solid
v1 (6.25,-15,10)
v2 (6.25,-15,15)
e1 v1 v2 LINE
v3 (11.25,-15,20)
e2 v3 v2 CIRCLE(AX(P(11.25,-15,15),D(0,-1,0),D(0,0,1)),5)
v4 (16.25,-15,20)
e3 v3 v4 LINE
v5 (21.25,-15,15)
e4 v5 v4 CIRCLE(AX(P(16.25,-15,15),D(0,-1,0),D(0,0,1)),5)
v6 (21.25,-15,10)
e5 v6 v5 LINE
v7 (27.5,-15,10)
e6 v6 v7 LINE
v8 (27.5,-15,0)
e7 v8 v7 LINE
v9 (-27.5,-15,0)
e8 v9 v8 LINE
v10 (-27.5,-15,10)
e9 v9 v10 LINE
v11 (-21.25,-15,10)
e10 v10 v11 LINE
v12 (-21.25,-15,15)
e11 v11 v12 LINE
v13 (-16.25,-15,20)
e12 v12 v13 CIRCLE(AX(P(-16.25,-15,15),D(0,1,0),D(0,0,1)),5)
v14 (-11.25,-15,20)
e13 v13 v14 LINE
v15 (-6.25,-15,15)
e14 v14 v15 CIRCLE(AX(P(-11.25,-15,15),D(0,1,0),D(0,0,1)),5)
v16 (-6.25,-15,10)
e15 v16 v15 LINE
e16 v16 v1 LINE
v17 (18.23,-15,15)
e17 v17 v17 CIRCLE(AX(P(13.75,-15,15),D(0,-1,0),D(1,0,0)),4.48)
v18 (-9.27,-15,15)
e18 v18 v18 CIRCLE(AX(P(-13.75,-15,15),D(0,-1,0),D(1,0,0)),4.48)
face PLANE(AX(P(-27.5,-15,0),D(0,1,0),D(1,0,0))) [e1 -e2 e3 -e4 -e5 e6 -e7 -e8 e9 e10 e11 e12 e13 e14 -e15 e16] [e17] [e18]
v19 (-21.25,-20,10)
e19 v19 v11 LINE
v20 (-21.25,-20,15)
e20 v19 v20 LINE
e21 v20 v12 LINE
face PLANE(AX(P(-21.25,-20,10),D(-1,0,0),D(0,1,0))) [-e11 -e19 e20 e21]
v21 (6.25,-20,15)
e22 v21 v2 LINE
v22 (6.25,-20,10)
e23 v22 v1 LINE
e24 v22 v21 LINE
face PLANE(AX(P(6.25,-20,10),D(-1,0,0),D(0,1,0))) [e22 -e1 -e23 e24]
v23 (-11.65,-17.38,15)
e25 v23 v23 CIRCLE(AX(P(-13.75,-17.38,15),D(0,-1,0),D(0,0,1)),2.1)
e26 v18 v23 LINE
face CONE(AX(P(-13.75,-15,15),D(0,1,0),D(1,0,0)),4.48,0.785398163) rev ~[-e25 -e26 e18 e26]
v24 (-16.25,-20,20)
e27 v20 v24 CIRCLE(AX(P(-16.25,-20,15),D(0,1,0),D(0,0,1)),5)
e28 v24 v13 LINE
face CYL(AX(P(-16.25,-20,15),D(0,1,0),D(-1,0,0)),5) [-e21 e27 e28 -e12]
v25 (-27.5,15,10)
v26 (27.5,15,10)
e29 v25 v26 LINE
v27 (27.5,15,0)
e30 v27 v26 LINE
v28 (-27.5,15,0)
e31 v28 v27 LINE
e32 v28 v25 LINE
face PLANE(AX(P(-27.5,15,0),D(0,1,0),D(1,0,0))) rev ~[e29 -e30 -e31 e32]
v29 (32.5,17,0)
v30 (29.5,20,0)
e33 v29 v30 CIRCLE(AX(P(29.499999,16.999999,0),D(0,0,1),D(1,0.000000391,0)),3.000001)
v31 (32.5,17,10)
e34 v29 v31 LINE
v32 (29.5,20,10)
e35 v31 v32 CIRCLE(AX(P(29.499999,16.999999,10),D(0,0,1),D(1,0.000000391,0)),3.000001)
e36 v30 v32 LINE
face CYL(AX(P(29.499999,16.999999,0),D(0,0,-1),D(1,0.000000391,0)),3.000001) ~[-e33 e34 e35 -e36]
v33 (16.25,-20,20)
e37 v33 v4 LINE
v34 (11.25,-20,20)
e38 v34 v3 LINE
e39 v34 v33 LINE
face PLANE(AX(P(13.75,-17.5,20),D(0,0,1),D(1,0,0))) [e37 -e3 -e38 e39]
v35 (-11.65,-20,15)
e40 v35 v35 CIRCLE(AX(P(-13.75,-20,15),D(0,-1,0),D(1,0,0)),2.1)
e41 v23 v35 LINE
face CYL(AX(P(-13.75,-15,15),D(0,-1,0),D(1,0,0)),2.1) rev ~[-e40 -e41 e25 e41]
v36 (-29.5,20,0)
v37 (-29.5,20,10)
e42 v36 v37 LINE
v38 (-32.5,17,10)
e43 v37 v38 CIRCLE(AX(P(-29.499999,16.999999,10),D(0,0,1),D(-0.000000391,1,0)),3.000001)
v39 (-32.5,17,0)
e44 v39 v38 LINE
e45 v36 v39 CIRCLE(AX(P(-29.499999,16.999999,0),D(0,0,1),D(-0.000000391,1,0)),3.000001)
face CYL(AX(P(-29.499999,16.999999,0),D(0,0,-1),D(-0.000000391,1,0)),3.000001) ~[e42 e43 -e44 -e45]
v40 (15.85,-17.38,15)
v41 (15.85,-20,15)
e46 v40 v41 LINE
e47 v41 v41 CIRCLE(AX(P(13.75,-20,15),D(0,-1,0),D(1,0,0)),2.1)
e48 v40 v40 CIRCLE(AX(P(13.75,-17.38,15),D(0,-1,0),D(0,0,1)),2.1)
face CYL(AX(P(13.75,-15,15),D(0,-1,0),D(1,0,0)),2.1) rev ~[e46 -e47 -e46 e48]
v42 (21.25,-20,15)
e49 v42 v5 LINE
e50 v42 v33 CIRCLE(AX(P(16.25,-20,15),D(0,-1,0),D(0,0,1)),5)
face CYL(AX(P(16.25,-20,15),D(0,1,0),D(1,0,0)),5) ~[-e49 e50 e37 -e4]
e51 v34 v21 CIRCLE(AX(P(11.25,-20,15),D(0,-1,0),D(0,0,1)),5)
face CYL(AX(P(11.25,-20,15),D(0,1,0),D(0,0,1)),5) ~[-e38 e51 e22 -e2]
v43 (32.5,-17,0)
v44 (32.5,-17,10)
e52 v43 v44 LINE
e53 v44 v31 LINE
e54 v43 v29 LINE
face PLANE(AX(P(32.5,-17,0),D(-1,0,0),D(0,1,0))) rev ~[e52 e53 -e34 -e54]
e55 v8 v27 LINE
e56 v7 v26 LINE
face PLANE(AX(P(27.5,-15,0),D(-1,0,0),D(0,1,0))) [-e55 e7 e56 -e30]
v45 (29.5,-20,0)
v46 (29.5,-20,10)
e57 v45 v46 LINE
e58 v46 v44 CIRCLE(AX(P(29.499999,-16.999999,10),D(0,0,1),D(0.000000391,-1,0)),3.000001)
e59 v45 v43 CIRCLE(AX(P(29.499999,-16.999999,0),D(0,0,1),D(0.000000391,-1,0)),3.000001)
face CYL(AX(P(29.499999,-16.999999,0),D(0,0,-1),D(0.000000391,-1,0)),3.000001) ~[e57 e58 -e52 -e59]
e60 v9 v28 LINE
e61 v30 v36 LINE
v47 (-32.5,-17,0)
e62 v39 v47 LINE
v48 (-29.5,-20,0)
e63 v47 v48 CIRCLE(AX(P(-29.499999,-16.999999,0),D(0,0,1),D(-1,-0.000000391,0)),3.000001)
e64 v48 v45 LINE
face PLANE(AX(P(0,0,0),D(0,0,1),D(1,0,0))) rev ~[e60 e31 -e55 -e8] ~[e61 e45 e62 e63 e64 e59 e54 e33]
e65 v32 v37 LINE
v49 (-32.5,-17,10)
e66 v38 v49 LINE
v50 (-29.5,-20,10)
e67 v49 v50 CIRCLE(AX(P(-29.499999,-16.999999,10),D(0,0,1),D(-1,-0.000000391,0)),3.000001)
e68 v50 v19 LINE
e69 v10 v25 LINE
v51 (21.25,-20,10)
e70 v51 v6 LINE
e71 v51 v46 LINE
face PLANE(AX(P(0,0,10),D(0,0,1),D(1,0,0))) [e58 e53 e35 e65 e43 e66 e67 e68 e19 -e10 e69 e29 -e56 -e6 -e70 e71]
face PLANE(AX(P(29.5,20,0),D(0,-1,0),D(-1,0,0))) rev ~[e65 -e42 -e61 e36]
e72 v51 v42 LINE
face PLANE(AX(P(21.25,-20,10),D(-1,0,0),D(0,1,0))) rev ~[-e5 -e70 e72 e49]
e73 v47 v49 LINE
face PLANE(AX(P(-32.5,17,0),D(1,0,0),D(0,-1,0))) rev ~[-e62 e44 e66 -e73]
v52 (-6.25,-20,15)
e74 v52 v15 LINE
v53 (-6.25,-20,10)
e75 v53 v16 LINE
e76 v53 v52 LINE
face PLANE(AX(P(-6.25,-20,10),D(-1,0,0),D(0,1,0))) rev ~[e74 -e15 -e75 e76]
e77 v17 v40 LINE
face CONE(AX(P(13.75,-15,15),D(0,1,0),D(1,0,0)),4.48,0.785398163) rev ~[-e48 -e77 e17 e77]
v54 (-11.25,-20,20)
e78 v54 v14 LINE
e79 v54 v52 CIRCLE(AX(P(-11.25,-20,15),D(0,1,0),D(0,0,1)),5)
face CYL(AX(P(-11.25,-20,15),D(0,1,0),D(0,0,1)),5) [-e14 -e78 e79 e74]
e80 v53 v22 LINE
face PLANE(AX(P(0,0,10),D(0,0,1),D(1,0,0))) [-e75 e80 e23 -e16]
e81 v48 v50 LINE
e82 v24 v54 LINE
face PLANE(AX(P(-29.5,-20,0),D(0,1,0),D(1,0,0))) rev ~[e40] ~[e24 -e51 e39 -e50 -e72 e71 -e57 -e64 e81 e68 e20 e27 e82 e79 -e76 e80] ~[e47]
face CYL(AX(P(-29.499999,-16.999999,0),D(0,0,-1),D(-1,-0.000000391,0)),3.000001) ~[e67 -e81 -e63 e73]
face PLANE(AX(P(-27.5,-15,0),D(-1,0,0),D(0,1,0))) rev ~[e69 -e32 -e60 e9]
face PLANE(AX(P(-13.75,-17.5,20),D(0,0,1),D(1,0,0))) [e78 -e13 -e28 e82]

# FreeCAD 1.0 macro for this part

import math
import FreeCAD as App
import Part
import Sketcher
Q = App.Units.Quantity


def edges_at(feature, points):
    """Names of the edges that pass closest to the given points."""
    edges = feature.Shape.Edges
    near = lambda p: min(range(len(edges)), key=lambda i: edges[i].distToShape(Part.Vertex(*p))[0])
    return sorted({f"Edge{near(p) + 1}" for p in points})

doc = App.newDocument("Part")
body = doc.addObject("PartDesign::Body", "Body")

# Sketch on XY plane
sketch1 = body.newObject("Sketcher::SketchObject", "Sketch")
sketch1.AttachmentSupport = (doc.getObject("XY_Plane"), [""])
sketch1.MapMode = "FlatFace"
sketch1.addGeometry(Part.LineSegment(App.Vector(29.5, 20, 0), App.Vector(-29.5, 20, 0)), False)
sketch1.addGeometry(Part.ArcOfCircle(Part.Circle(App.Vector(-29.5, 17, 0), App.Vector(0, 0, 1), 3), math.radians(90), math.radians(180)), False)
sketch1.addGeometry(Part.LineSegment(App.Vector(-32.5, 17, 0), App.Vector(-32.5, -17, 0)), False)
sketch1.addGeometry(Part.ArcOfCircle(Part.Circle(App.Vector(-29.5, -17, 0), App.Vector(0, 0, 1), 3), math.radians(-180), math.radians(-90)), False)
sketch1.addGeometry(Part.LineSegment(App.Vector(-29.5, -20, 0), App.Vector(29.5, -20, 0)), False)
sketch1.addGeometry(Part.ArcOfCircle(Part.Circle(App.Vector(29.5, -17, 0), App.Vector(0, 0, 1), 3), math.radians(-90), math.radians(0)), False)
sketch1.addGeometry(Part.LineSegment(App.Vector(32.5, -17, 0), App.Vector(32.5, 17, 0)), False)
sketch1.addGeometry(Part.ArcOfCircle(Part.Circle(App.Vector(29.5, 17, 0), App.Vector(0, 0, 1), 3), math.radians(0), math.radians(90)), False)
sketch1.addGeometry(Part.LineSegment(App.Vector(27.5, -15, 0), App.Vector(-27.5, -15, 0)), False)
sketch1.addGeometry(Part.LineSegment(App.Vector(-27.5, -15, 0), App.Vector(-27.5, 15, 0)), False)
sketch1.addGeometry(Part.LineSegment(App.Vector(-27.5, 15, 0), App.Vector(27.5, 15, 0)), False)
sketch1.addGeometry(Part.LineSegment(App.Vector(27.5, 15, 0), App.Vector(27.5, -15, 0)), False)
sketch1.addConstraint(Sketcher.Constraint("Tangent", 0, 2, 1, 1))
sketch1.addConstraint(Sketcher.Constraint("Tangent", 1, 2, 2, 1))
sketch1.addConstraint(Sketcher.Constraint("Tangent", 2, 2, 3, 1))
sketch1.addConstraint(Sketcher.Constraint("Tangent", 3, 2, 4, 1))
sketch1.addConstraint(Sketcher.Constraint("Tangent", 4, 2, 5, 1))
sketch1.addConstraint(Sketcher.Constraint("Tangent", 5, 2, 6, 1))
sketch1.addConstraint(Sketcher.Constraint("Tangent", 6, 2, 7, 1))
sketch1.addConstraint(Sketcher.Constraint("Tangent", 7, 2, 0, 1))
sketch1.addConstraint(Sketcher.Constraint("Coincident", 8, 2, 9, 1))
sketch1.addConstraint(Sketcher.Constraint("Coincident", 9, 2, 10, 1))
sketch1.addConstraint(Sketcher.Constraint("Coincident", 10, 2, 11, 1))
sketch1.addConstraint(Sketcher.Constraint("Coincident", 11, 2, 8, 1))
sketch1.addConstraint(Sketcher.Constraint("Horizontal", 0))
sketch1.addConstraint(Sketcher.Constraint("Vertical", 2))
sketch1.addConstraint(Sketcher.Constraint("Horizontal", 4))
sketch1.addConstraint(Sketcher.Constraint("Vertical", 6))
sketch1.addConstraint(Sketcher.Constraint("Horizontal", 8))
sketch1.addConstraint(Sketcher.Constraint("Vertical", 9))
sketch1.addConstraint(Sketcher.Constraint("Horizontal", 10))
sketch1.addConstraint(Sketcher.Constraint("Vertical", 11))
sketch1.addConstraint(Sketcher.Constraint("Equal", 1, 3))
sketch1.addConstraint(Sketcher.Constraint("Equal", 3, 5))
sketch1.addConstraint(Sketcher.Constraint("Equal", 5, 7))
sketch1.addConstraint(Sketcher.Constraint("Symmetric", 1, 3, 5, 3, -1, 1))
sketch1.addConstraint(Sketcher.Constraint("Symmetric", 8, 2, 10, 2, -1, 1))
sketch1.addConstraint(Sketcher.Constraint("Radius", 1, Q("3.000001 mm")))
sketch1.addConstraint(Sketcher.Constraint("DistanceX", 0, 2, 0, 1, Q("59 mm")))
sketch1.addConstraint(Sketcher.Constraint("DistanceX", 8, 2, 8, 1, Q("55 mm")))
sketch1.addConstraint(Sketcher.Constraint("DistanceY", 2, 2, 2, 1, Q("34 mm")))
sketch1.addConstraint(Sketcher.Constraint("DistanceY", 9, 1, 9, 2, Q("30 mm")))
pad1 = body.newObject("PartDesign::Pad", "Pad")
pad1.Profile = sketch1
pad1.Length = 10

# Sketch on XY plane
sketch2 = body.newObject("Sketcher::SketchObject", "Sketch001")
sketch2.AttachmentSupport = (doc.getObject("XY_Plane"), [""])
sketch2.MapMode = "FlatFace"
sketch2.AttachmentOffset = App.Placement(App.Vector(0, 0, 10), App.Rotation())
sketch2.addGeometry(Part.LineSegment(App.Vector(-21, -15, 0), App.Vector(-21, -20, 0)), False)
sketch2.addGeometry(Part.LineSegment(App.Vector(-21, -20, 0), App.Vector(-6, -20, 0)), False)
sketch2.addGeometry(Part.LineSegment(App.Vector(-6, -20, 0), App.Vector(-6, -15, 0)), False)
sketch2.addGeometry(Part.LineSegment(App.Vector(-6, -15, 0), App.Vector(-21, -15, 0)), False)
sketch2.addGeometry(Part.LineSegment(App.Vector(6, -15, 0), App.Vector(6, -20, 0)), False)
sketch2.addGeometry(Part.LineSegment(App.Vector(6, -20, 0), App.Vector(21, -20, 0)), False)
sketch2.addGeometry(Part.LineSegment(App.Vector(21, -20, 0), App.Vector(21, -15, 0)), False)
sketch2.addGeometry(Part.LineSegment(App.Vector(21, -15, 0), App.Vector(6, -15, 0)), False)
sketch2.addConstraint(Sketcher.Constraint("Coincident", 0, 2, 1, 1))
sketch2.addConstraint(Sketcher.Constraint("Coincident", 1, 2, 2, 1))
sketch2.addConstraint(Sketcher.Constraint("Coincident", 2, 2, 3, 1))
sketch2.addConstraint(Sketcher.Constraint("Coincident", 3, 2, 0, 1))
sketch2.addConstraint(Sketcher.Constraint("Coincident", 4, 2, 5, 1))
sketch2.addConstraint(Sketcher.Constraint("Coincident", 5, 2, 6, 1))
sketch2.addConstraint(Sketcher.Constraint("Coincident", 6, 2, 7, 1))
sketch2.addConstraint(Sketcher.Constraint("Coincident", 7, 2, 4, 1))
sketch2.addConstraint(Sketcher.Constraint("Vertical", 0))
sketch2.addConstraint(Sketcher.Constraint("Horizontal", 1))
sketch2.addConstraint(Sketcher.Constraint("Vertical", 2))
sketch2.addConstraint(Sketcher.Constraint("Horizontal", 3))
sketch2.addConstraint(Sketcher.Constraint("Vertical", 4))
sketch2.addConstraint(Sketcher.Constraint("Horizontal", 5))
sketch2.addConstraint(Sketcher.Constraint("Vertical", 6))
sketch2.addConstraint(Sketcher.Constraint("Horizontal", 7))
sketch2.addConstraint(Sketcher.Constraint("Symmetric", 1, 2, 4, 2, -2))
sketch2.addConstraint(Sketcher.Constraint("Symmetric", 3, 2, 6, 2, -2))
sketch2.addConstraint(Sketcher.Constraint("DistanceX", 1, 1, 1, 2, Q("15 mm")))
sketch2.addConstraint(Sketcher.Constraint("DistanceY", 0, 2, 0, 1, Q("5 mm")))
sketch2.addConstraint(Sketcher.Constraint("DistanceY", 0, 2, -1, 1, Q("20 mm")))
sketch2.addConstraint(Sketcher.Constraint("DistanceX", 1, 2, 4, 2, Q("12.5 mm")))
pad2 = body.newObject("PartDesign::Pad", "Pad001")
pad2.Profile = sketch2
pad2.Length = 10
doc.recompute()

fillet = body.newObject("PartDesign::Fillet", "Fillet")
fillet.Base = (pad2, edges_at(pad2, [
    (-21.25, -17.5, 20),
    (-6.25, -17.5, 20),
    (6.25, -17.5, 20),
    (21.25, -17.5, 20),
]))
fillet.Radius = 5

# Sketch on XZ plane
sketch3 = body.newObject("Sketcher::SketchObject", "Sketch002")
sketch3.AttachmentSupport = (doc.getObject("XZ_Plane"), [""])
sketch3.MapMode = "FlatFace"
sketch3.AttachmentOffset = App.Placement(App.Vector(0, 0, 15), App.Rotation())
sketch3.addGeometry(Part.Circle(App.Vector(-13.8, 15, 0), App.Vector(0, 0, 1), 2.1), False)
sketch3.addGeometry(Part.Circle(App.Vector(13.8, 15, 0), App.Vector(0, 0, 1), 2.1), False)
sketch3.addConstraint(Sketcher.Constraint("Equal", 0, 1))
sketch3.addConstraint(Sketcher.Constraint("Symmetric", 0, 3, 1, 3, -2))
sketch3.addConstraint(Sketcher.Constraint("Diameter", 0, Q("4.2 mm")))
sketch3.addConstraint(Sketcher.Constraint("DistanceY", -1, 1, 0, 3, Q("15 mm")))
sketch3.addConstraint(Sketcher.Constraint("DistanceX", 0, 3, 1, 3, Q("27.5 mm")))
doc.recompute()
hole = body.newObject("PartDesign::Hole", "Hole")
hole.Profile = sketch3
hole.ThreadType = "None"
hole.Diameter = 4.2
hole.DepthType = "ThroughAll"
hole.HoleCutType = "Countersink"
hole.HoleCutDiameter = 8.96
hole.HoleCutCountersinkAngle = 90
hole.Reversed = True

doc.recompute()
